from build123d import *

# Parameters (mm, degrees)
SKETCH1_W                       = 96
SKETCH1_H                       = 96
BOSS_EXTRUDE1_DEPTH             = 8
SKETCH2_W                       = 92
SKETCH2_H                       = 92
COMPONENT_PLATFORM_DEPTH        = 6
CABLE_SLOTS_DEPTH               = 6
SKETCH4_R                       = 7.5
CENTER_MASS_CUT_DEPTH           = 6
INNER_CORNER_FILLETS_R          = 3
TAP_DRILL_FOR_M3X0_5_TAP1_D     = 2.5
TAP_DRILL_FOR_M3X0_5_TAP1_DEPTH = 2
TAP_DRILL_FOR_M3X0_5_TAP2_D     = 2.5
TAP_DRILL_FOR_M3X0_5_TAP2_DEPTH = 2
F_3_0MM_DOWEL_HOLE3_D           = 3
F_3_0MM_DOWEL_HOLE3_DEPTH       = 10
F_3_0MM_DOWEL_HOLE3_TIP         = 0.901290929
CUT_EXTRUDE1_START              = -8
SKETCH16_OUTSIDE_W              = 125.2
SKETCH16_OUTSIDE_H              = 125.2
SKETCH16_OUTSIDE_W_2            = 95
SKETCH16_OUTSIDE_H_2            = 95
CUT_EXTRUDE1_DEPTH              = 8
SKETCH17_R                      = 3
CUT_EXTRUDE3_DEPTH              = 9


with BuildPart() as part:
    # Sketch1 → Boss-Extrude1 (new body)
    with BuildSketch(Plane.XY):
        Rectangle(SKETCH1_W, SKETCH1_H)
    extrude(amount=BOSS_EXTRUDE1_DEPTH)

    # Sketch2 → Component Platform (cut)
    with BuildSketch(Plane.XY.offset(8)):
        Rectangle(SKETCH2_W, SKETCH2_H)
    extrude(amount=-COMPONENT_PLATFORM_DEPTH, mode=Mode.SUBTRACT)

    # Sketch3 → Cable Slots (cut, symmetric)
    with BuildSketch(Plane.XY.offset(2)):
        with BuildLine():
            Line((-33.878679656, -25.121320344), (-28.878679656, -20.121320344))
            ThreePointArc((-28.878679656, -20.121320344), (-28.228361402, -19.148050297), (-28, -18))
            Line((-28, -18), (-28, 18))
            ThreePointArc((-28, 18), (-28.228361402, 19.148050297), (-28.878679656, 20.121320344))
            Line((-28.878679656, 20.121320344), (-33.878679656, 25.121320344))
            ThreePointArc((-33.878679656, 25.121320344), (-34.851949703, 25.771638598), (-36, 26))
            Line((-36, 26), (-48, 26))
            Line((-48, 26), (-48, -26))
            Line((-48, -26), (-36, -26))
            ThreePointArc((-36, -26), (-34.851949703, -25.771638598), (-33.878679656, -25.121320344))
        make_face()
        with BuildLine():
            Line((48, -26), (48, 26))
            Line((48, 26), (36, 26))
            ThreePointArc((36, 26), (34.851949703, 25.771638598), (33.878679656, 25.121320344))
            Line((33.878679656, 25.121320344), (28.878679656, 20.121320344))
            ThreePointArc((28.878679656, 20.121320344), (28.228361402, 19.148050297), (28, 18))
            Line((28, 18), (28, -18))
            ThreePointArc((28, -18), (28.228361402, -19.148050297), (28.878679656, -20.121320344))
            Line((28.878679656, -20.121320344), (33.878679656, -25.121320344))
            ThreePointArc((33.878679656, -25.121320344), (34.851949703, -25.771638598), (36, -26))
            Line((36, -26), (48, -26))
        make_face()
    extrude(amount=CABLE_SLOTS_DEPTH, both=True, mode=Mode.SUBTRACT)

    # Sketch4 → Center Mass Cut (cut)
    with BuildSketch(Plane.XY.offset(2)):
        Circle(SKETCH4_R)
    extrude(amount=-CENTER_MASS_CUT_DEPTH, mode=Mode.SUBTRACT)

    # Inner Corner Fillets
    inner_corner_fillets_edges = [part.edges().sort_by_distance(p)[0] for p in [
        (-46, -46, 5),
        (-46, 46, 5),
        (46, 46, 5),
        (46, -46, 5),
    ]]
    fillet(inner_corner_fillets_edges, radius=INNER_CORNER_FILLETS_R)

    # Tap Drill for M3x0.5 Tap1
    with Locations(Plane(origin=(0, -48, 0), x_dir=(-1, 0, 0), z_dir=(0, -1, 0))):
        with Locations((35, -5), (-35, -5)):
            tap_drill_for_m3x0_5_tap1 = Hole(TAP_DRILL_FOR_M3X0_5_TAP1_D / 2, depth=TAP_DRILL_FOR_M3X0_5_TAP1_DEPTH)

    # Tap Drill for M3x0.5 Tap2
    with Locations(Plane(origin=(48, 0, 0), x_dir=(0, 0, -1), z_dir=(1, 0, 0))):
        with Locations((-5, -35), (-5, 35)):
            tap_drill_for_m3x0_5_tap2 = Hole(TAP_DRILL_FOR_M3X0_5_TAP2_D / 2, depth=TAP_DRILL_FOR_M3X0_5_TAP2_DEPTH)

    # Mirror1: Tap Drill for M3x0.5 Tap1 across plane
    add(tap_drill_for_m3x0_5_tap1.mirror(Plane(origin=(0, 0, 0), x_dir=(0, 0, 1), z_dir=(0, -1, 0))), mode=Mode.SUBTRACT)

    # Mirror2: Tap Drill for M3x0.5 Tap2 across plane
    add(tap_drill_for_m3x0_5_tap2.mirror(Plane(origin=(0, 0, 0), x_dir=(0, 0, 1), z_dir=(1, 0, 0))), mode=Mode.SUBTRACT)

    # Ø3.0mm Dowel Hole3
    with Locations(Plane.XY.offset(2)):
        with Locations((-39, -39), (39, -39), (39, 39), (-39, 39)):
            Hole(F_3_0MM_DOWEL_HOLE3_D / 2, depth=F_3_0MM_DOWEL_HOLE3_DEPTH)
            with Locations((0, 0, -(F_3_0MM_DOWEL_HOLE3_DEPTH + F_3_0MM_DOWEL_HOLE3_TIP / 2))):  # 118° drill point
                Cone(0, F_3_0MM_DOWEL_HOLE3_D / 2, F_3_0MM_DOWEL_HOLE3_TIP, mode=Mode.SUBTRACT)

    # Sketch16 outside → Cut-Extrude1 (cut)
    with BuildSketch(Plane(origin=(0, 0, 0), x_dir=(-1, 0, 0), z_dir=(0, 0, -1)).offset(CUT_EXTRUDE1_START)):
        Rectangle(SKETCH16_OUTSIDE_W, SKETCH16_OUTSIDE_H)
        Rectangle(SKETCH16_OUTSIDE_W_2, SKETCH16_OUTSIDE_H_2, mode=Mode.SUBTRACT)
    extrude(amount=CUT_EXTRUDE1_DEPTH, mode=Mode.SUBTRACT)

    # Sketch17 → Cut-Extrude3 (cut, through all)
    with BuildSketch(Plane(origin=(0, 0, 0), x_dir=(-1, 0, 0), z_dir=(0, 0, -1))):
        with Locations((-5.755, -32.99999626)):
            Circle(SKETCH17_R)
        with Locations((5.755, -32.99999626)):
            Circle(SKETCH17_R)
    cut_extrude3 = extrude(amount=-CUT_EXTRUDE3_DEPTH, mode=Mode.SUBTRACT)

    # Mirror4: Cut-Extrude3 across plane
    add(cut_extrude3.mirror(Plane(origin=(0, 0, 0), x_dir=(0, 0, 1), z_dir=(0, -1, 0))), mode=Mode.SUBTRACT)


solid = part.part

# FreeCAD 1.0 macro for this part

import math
import FreeCAD as App
import Part
import Sketcher

V = App.Vector


def edges_at(feature, points):
    """Names of the edges that pass closest to the given points."""
    edges = feature.Shape.Edges
    near = lambda p: min(range(len(edges)), key=lambda i: edges[i].distToShape(Part.Vertex(*p))[0])
    return sorted({f"Edge{near(p) + 1}" for p in points})


def add_polygon(sketch, points):
    """Adds a closed chain of lines whose ends are joined by coincident constraints."""
    first, n = sketch.GeometryCount, len(points)
    for a, b in zip(points, points[1:] + points[:1]):
        sketch.addGeometry(Part.LineSegment(App.Vector(*a, 0), App.Vector(*b, 0)), False)
    for i in range(n):
        sketch.addConstraint(Sketcher.Constraint("Coincident", first + i, 2, first + (i + 1) % n, 1))

doc = App.newDocument("Part")
body = doc.addObject("PartDesign::Body", "Body")

# Sketch on XY plane
sketch1 = body.newObject("Sketcher::SketchObject", "Sketch")
sketch1.AttachmentSupport = (doc.getObject("XY_Plane"), [""])
sketch1.MapMode = "FlatFace"
add_polygon(sketch1, [(-48, 48), (-48, -48), (48, -48), (48, 48)])  # lines 0-3
sketch1.addConstraint([
    Sketcher.Constraint("Vertical", 0),
    Sketcher.Constraint("Horizontal", 1),
    Sketcher.Constraint("Vertical", 2),
    Sketcher.Constraint("Horizontal", 3),
    Sketcher.Constraint("Symmetric", 0, 2, 2, 2, -1, 1),
    Sketcher.Constraint("Equal", 3, 0),
    Sketcher.Constraint("DistanceX", 1, 1, 1, 2, 96.0),
])
pad1 = body.newObject("PartDesign::Pad", "Pad")
pad1.Profile = sketch1
pad1.Length = 8

# Sketch on XY plane
sketch2 = body.newObject("Sketcher::SketchObject", "Sketch001")
sketch2.AttachmentSupport = (doc.getObject("XY_Plane"), [""])
sketch2.MapMode = "FlatFace"
sketch2.AttachmentOffset = App.Placement(V(0, 0, 8), App.Rotation())
add_polygon(sketch2, [(-46, 46), (-46, -46), (46, -46), (46, 46)])  # lines 0-3
sketch2.addConstraint([
    Sketcher.Constraint("Vertical", 0),
    Sketcher.Constraint("Horizontal", 1),
    Sketcher.Constraint("Vertical", 2),
    Sketcher.Constraint("Horizontal", 3),
    Sketcher.Constraint("Symmetric", 0, 2, 2, 2, -1, 1),
    Sketcher.Constraint("Equal", 3, 0),
    Sketcher.Constraint("DistanceX", 1, 1, 1, 2, 92.0),
])
pocket1 = body.newObject("PartDesign::Pocket", "Pocket")
pocket1.Profile = sketch2
pocket1.Length = 6

# Sketch on XY plane
sketch3 = body.newObject("Sketcher::SketchObject", "Sketch002")
sketch3.AttachmentSupport = (doc.getObject("XY_Plane"), [""])
sketch3.MapMode = "FlatFace"
sketch3.AttachmentOffset = App.Placement(V(0, 0, 2), App.Rotation())
sketch3.addGeometry([
    Part.LineSegment(V(-33.9, -25.1, 0), V(-28.9, -20.1, 0)),  # 0
    Part.ArcOfCircle(Part.Circle(V(-31, -18, 0), V(0, 0, 1), 3), math.radians(-45), math.radians(0)),  # 1
    Part.LineSegment(V(-28, -18, 0), V(-28, 18, 0)),  # 2
    Part.ArcOfCircle(Part.Circle(V(-31, 18, 0), V(0, 0, 1), 3), math.radians(0), math.radians(45)),  # 3
    Part.LineSegment(V(-28.9, 20.1, 0), V(-33.9, 25.1, 0)),  # 4
    Part.ArcOfCircle(Part.Circle(V(-36, 23, 0), V(0, 0, 1), 3), math.radians(45), math.radians(90)),  # 5
    Part.LineSegment(V(-36, 26, 0), V(-48, 26, 0)),  # 6
    Part.LineSegment(V(-48, 26, 0), V(-48, -26, 0)),  # 7
    Part.LineSegment(V(-48, -26, 0), V(-36, -26, 0)),  # 8
    Part.ArcOfCircle(Part.Circle(V(-36, -23, 0), V(0, 0, 1), 3), math.radians(-90), math.radians(-45)),  # 9
    Part.LineSegment(V(48, -26, 0), V(48, 26, 0)),  # 10
    Part.LineSegment(V(48, 26, 0), V(36, 26, 0)),  # 11
    Part.ArcOfCircle(Part.Circle(V(36, 23, 0), V(0, 0, 1), 3), math.radians(90), math.radians(135)),  # 12
    Part.LineSegment(V(33.9, 25.1, 0), V(28.9, 20.1, 0)),  # 13
    Part.ArcOfCircle(Part.Circle(V(31, 18, 0), V(0, 0, 1), 3), math.radians(135), math.radians(180)),  # 14
    Part.LineSegment(V(28, 18, 0), V(28, -18, 0)),  # 15
    Part.ArcOfCircle(Part.Circle(V(31, -18, 0), V(0, 0, 1), 3), math.radians(180), math.radians(225)),  # 16
    Part.LineSegment(V(28.9, -20.1, 0), V(33.9, -25.1, 0)),  # 17
    Part.ArcOfCircle(Part.Circle(V(36, -23, 0), V(0, 0, 1), 3), math.radians(-135), math.radians(-90)),  # 18
    Part.LineSegment(V(36, -26, 0), V(48, -26, 0)),  # 19
], False)
sketch3.addConstraint([
    Sketcher.Constraint("Tangent", 0, 2, 1, 1),
    Sketcher.Constraint("Tangent", 1, 2, 2, 1),
    Sketcher.Constraint("Tangent", 2, 2, 3, 1),
    Sketcher.Constraint("Tangent", 3, 2, 4, 1),
    Sketcher.Constraint("Tangent", 4, 2, 5, 1),
    Sketcher.Constraint("Tangent", 5, 2, 6, 1),
    Sketcher.Constraint("Coincident", 6, 2, 7, 1),
    Sketcher.Constraint("Coincident", 7, 2, 8, 1),
    Sketcher.Constraint("Tangent", 8, 2, 9, 1),
    Sketcher.Constraint("Tangent", 9, 2, 0, 1),
    Sketcher.Constraint("Coincident", 10, 2, 11, 1),
    Sketcher.Constraint("Tangent", 11, 2, 12, 1),
    Sketcher.Constraint("Tangent", 12, 2, 13, 1),
    Sketcher.Constraint("Tangent", 13, 2, 14, 1),
    Sketcher.Constraint("Tangent", 14, 2, 15, 1),
    Sketcher.Constraint("Tangent", 15, 2, 16, 1),
    Sketcher.Constraint("Tangent", 16, 2, 17, 1),
    Sketcher.Constraint("Tangent", 17, 2, 18, 1),
    Sketcher.Constraint("Tangent", 18, 2, 19, 1),
    Sketcher.Constraint("Coincident", 19, 2, 10, 1),
    Sketcher.Constraint("Vertical", 2),
    Sketcher.Constraint("Horizontal", 6),
    Sketcher.Constraint("Vertical", 7),
    Sketcher.Constraint("Horizontal", 8),
    Sketcher.Constraint("Vertical", 10),
    Sketcher.Constraint("Horizontal", 11),
    Sketcher.Constraint("Vertical", 15),
    Sketcher.Constraint("Horizontal", 19),
    Sketcher.Constraint("Equal", 1, 3),
    Sketcher.Constraint("Equal", 3, 5),
    Sketcher.Constraint("Equal", 5, 9),
    Sketcher.Constraint("Equal", 9, 12),
    Sketcher.Constraint("Equal", 12, 14),
    Sketcher.Constraint("Equal", 14, 16),
    Sketcher.Constraint("Equal", 16, 18),
    Sketcher.Constraint("Symmetric", 9, 3, 12, 3, -1, 1),
    Sketcher.Constraint("Symmetric", 1, 3, 14, 3, -1, 1),
    Sketcher.Constraint("Symmetric", 5, 3, 18, 3, -1, 1),
    Sketcher.Constraint("Symmetric", 5, 3, 12, 3, -2),
    Sketcher.Constraint("Perpendicular", 0, 4),
    Sketcher.Constraint("Perpendicular", 13, 17),
    Sketcher.Constraint("Horizontal", 3, 3, 14, 3),
    Sketcher.Constraint("Equal", 8, 11),
    Sketcher.Constraint("Radius", 1, 3.0),
    Sketcher.Constraint("DistanceX", 6, 2, 6, 1, 12.0),
    Sketcher.Constraint("DistanceY", 2, 1, 2, 2, 36.0),
    Sketcher.Constraint("DistanceY", 7, 2, 7, 1, 52.0),
    Sketcher.Constraint("DistanceX", 1, 3, -1, 1, 31.0),
])
pocket2 = body.newObject("PartDesign::Pocket", "Pocket001")
pocket2.Profile = sketch3
pocket2.Length = 12
pocket2.Midplane = True

# Sketch on XY plane
sketch4 = body.newObject("Sketcher::SketchObject", "Sketch003")
sketch4.AttachmentSupport = (doc.getObject("XY_Plane"), [""])
sketch4.MapMode = "FlatFace"
sketch4.AttachmentOffset = App.Placement(V(0, 0, 2), App.Rotation())
sketch4.addGeometry(Part.Circle(V(0, 0, 0), V(0, 0, 1), 8), False)
sketch4.addConstraint([
    Sketcher.Constraint("Coincident", 0, 3, -1, 1),
    Sketcher.Constraint("Diameter", 0, 15.0),
])
pocket3 = body.newObject("PartDesign::Pocket", "Pocket002")
pocket3.Profile = sketch4
pocket3.Length = 6
doc.recompute()

fillet = body.newObject("PartDesign::Fillet", "Fillet")
fillet.Base = (pocket3, edges_at(pocket3, [
    (-46, -46, 5),
    (-46, 46, 5),
    (46, 46, 5),
    (46, -46, 5),
]))
fillet.Radius = 3

# Sketch on XZ plane
sketch5 = body.newObject("Sketcher::SketchObject", "Sketch004")
sketch5.AttachmentSupport = (doc.getObject("XZ_Plane"), [""])
sketch5.MapMode = "FlatFace"
sketch5.AttachmentOffset = App.Placement(V(0, 0, 48), App.Rotation())
sketch5.addGeometry([
    Part.Circle(V(-35, 5, 0), V(0, 0, 1), 1.2),
    Part.Circle(V(35, 5, 0), V(0, 0, 1), 1.2),
], False)
sketch5.addConstraint([
    Sketcher.Constraint("Equal", 0, 1),
    Sketcher.Constraint("Symmetric", 0, 3, 1, 3, -2),
    Sketcher.Constraint("Diameter", 0, 2.5),
    Sketcher.Constraint("DistanceX", 0, 3, -1, 1, 35.0),
    Sketcher.Constraint("DistanceY", -1, 1, 0, 3, 5.0),
])
doc.recompute()
hole = body.newObject("PartDesign::Hole", "Hole")
hole.Profile = sketch5
hole.ThreadType = "None"
hole.Diameter = 2.5
hole.DepthType = "Dimension"
hole.Depth = 2
hole.DrillPoint = "Flat"

# Sketch on YZ plane
sketch6 = body.newObject("Sketcher::SketchObject", "Sketch005")
sketch6.AttachmentSupport = (doc.getObject("YZ_Plane"), [""])
sketch6.MapMode = "FlatFace"
sketch6.AttachmentOffset = App.Placement(V(0, 0, 48), App.Rotation())
sketch6.addGeometry([
    Part.Circle(V(-35, 5, 0), V(0, 0, 1), 1.2),
    Part.Circle(V(35, 5, 0), V(0, 0, 1), 1.2),
], False)
sketch6.addConstraint([
    Sketcher.Constraint("Equal", 0, 1),
    Sketcher.Constraint("Symmetric", 0, 3, 1, 3, -2),
    Sketcher.Constraint("Diameter", 0, 2.5),
    Sketcher.Constraint("DistanceX", 0, 3, -1, 1, 35.0),
    Sketcher.Constraint("DistanceY", -1, 1, 0, 3, 5.0),
])
doc.recompute()
hole2 = body.newObject("PartDesign::Hole", "Hole001")
hole2.Profile = sketch6
hole2.ThreadType = "None"
hole2.Diameter = 2.5
hole2.DepthType = "Dimension"
hole2.Depth = 2
hole2.DrillPoint = "Flat"
doc.recompute()

mirrored = body.newObject("PartDesign::Mirrored", "Mirrored")
mirrored.Originals = [hole]
mirrored.MirrorPlane = (doc.getObject("XZ_Plane"), [""])
body.Tip = mirrored
doc.recompute()

mirrored2 = body.newObject("PartDesign::Mirrored", "Mirrored001")
mirrored2.Originals = [hole2]
mirrored2.MirrorPlane = (doc.getObject("YZ_Plane"), [""])
body.Tip = mirrored2

# Sketch on XY plane
sketch7 = body.newObject("Sketcher::SketchObject", "Sketch006")
sketch7.AttachmentSupport = (doc.getObject("XY_Plane"), [""])
sketch7.MapMode = "FlatFace"
sketch7.AttachmentOffset = App.Placement(V(0, 0, 2), App.Rotation())
sketch7.addGeometry([
    Part.Circle(V(-39, -39, 0), V(0, 0, 1), 1.5),
    Part.Circle(V(39, -39, 0), V(0, 0, 1), 1.5),
    Part.Circle(V(39, 39, 0), V(0, 0, 1), 1.5),
    Part.Circle(V(-39, 39, 0), V(0, 0, 1), 1.5),
], False)
sketch7.addConstraint([
    Sketcher.Constraint("Equal", 0, 1),
    Sketcher.Constraint("Equal", 1, 2),
    Sketcher.Constraint("Equal", 2, 3),
    Sketcher.Constraint("Symmetric", 0, 3, 2, 3, -1, 1),
    Sketcher.Constraint("Symmetric", 1, 3, 3, 3, -1, 1),
    Sketcher.Constraint("Symmetric", 0, 3, 1, 3, -2),
    Sketcher.Constraint("Diameter", 0, 3.0),
    Sketcher.Constraint("DistanceX", 0, 3, -1, 1, 39.0),
    Sketcher.Constraint("DistanceY", 0, 3, -1, 1, 39.0),
])
doc.recompute()
hole3 = body.newObject("PartDesign::Hole", "Hole002")
hole3.Profile = sketch7
hole3.ThreadType = "None"
hole3.Diameter = 3
hole3.DepthType = "Dimension"
hole3.Depth = 10
hole3.DrillPoint = "Angled"
hole3.DrillPointAngle = 118

# Sketch on XY plane
sketch8 = body.newObject("Sketcher::SketchObject", "Sketch007")
sketch8.AttachmentSupport = (doc.getObject("XY_Plane"), [""])
sketch8.MapMode = "FlatFace"
sketch8.AttachmentOffset = App.Placement(V(0, 0, 8), App.Rotation())
add_polygon(sketch8, [(63, 63), (63, -63), (-63, -63), (-63, 63)])  # lines 0-3
add_polygon(sketch8, [(-48, -48), (48, -48), (48, 48), (-48, 48)])  # lines 4-7
sketch8.addConstraint([
    Sketcher.Constraint("Vertical", 0),
    Sketcher.Constraint("Horizontal", 1),
    Sketcher.Constraint("Vertical", 2),
    Sketcher.Constraint("Horizontal", 3),
    Sketcher.Constraint("Horizontal", 4),
    Sketcher.Constraint("Vertical", 5),
    Sketcher.Constraint("Horizontal", 6),
    Sketcher.Constraint("Vertical", 7),
    Sketcher.Constraint("Symmetric", 0, 2, 2, 2, -1, 1),
    Sketcher.Constraint("Symmetric", 4, 2, 6, 2, -1, 1),
    Sketcher.Constraint("Equal", 3, 0),
    Sketcher.Constraint("Equal", 6, 5),
    Sketcher.Constraint("DistanceX", 4, 1, 4, 2, 95.0),
    Sketcher.Constraint("DistanceX", 1, 2, 1, 1, 125.2),
])
pocket4 = body.newObject("PartDesign::Pocket", "Pocket003")
pocket4.Profile = sketch8
pocket4.Length = 8

# Sketch on XY plane
sketch9 = body.newObject("Sketcher::SketchObject", "Sketch008")
sketch9.AttachmentSupport = (doc.getObject("XY_Plane"), [""])
sketch9.MapMode = "FlatFace"
sketch9.addGeometry([
    Part.Circle(V(5.8, -33, 0), V(0, 0, 1), 3),
    Part.Circle(V(-5.8, -33, 0), V(0, 0, 1), 3),
], False)
sketch9.addConstraint([
    Sketcher.Constraint("Equal", 0, 1),
    Sketcher.Constraint("Symmetric", 0, 3, 1, 3, -2),
    Sketcher.Constraint("Diameter", 0, 6.0),
    Sketcher.Constraint("DistanceX", 1, 3, 0, 3, 11.51),
    Sketcher.Constraint("DistanceY", 0, 3, -1, 1, 32.999996),
])
pocket5 = body.newObject("PartDesign::Pocket", "Pocket004")
pocket5.Profile = sketch9
pocket5.Type = "ThroughAll"
pocket5.Reversed = True
doc.recompute()

mirrored3 = body.newObject("PartDesign::Mirrored", "Mirrored002")
mirrored3.Originals = [pocket5]
mirrored3.MirrorPlane = (doc.getObject("XZ_Plane"), [""])
body.Tip = mirrored3

doc.recompute()
